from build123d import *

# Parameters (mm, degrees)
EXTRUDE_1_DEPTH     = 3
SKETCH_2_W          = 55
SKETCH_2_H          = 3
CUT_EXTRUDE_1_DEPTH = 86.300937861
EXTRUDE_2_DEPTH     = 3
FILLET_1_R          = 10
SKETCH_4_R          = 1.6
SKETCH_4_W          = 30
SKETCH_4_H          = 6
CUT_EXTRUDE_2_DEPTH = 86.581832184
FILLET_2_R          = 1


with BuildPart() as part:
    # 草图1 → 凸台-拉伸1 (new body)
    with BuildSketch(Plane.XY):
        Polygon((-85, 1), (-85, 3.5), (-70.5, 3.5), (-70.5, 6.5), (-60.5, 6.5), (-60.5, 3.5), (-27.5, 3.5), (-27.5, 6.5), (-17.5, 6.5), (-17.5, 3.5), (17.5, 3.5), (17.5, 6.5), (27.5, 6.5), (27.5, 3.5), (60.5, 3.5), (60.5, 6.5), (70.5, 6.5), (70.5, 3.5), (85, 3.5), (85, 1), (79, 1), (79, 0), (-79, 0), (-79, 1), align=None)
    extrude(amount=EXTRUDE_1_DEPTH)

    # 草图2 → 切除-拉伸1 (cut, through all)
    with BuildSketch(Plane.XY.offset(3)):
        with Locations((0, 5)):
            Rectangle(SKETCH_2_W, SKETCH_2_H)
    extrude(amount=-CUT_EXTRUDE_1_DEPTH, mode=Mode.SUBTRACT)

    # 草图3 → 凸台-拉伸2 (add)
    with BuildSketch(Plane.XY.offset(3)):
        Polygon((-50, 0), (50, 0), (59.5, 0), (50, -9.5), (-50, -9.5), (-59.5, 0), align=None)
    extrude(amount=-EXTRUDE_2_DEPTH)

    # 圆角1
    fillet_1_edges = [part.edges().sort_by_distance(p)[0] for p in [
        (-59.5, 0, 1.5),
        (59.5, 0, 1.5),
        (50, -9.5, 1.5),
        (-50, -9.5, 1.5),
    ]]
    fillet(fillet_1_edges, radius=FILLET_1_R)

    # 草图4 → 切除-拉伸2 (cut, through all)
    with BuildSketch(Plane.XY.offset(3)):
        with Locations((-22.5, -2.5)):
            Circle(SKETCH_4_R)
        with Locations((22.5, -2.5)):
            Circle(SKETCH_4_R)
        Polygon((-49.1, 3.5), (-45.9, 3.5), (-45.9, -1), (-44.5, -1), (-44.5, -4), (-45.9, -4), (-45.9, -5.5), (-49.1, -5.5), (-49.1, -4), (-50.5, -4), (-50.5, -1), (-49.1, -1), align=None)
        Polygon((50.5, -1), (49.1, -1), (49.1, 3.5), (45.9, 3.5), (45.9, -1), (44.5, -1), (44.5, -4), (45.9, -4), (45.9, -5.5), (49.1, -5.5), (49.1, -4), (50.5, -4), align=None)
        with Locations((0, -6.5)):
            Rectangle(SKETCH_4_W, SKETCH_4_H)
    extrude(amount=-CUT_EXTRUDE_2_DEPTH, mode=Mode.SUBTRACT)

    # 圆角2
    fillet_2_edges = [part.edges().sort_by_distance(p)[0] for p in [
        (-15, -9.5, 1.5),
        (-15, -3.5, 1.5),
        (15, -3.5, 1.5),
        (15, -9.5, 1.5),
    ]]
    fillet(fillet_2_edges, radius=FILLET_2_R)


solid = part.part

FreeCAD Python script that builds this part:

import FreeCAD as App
import Part
import Sketcher
from FreeCAD import Vector
Q = App.Units.Quantity


def edges_at(feature, points):
    """Names of the edges that pass closest to the given points."""
    edges = feature.Shape.Edges
    near = lambda p: min(range(len(edges)), key=lambda i: edges[i].distToShape(Part.Vertex(*p))[0])
    return sorted({f"Edge{near(p) + 1}" for p in points})

doc = App.newDocument("Part")
body = doc.addObject("PartDesign::Body", "Body")

# Sketch on XY plane
sketch1 = body.newObject("Sketcher::SketchObject", "Sketch")
sketch1.AttachmentSupport = (doc.getObject("XY_Plane"), [""])
sketch1.MapMode = "FlatFace"
sketch1.addGeometry(Part.LineSegment(Vector(-85, 3.5, 0), Vector(-85, 1, 0)), False)
sketch1.addGeometry(Part.LineSegment(Vector(-85, 1, 0), Vector(-79, 1, 0)), False)
sketch1.addGeometry(Part.LineSegment(Vector(-79, 1, 0), Vector(-79, 0, 0)), False)
sketch1.addGeometry(Part.LineSegment(Vector(-79, 0, 0), Vector(79, 0, 0)), False)
sketch1.addGeometry(Part.LineSegment(Vector(79, 0, 0), Vector(79, 1, 0)), False)
sketch1.addGeometry(Part.LineSegment(Vector(79, 1, 0), Vector(85, 1, 0)), False)
sketch1.addGeometry(Part.LineSegment(Vector(85, 1, 0), Vector(85, 3.5, 0)), False)
sketch1.addGeometry(Part.LineSegment(Vector(85, 3.5, 0), Vector(70.5, 3.5, 0)), False)
sketch1.addGeometry(Part.LineSegment(Vector(70.5, 3.5, 0), Vector(70.5, 6.5, 0)), False)
sketch1.addGeometry(Part.LineSegment(Vector(70.5, 6.5, 0), Vector(60.5, 6.5, 0)), False)
sketch1.addGeometry(Part.LineSegment(Vector(60.5, 6.5, 0), Vector(60.5, 3.5, 0)), False)
sketch1.addGeometry(Part.LineSegment(Vector(60.5, 3.5, 0), Vector(27.5, 3.5, 0)), False)
sketch1.addGeometry(Part.LineSegment(Vector(27.5, 3.5, 0), Vector(27.5, 6.5, 0)), False)
sketch1.addGeometry(Part.LineSegment(Vector(27.5, 6.5, 0), Vector(17.5, 6.5, 0)), False)
sketch1.addGeometry(Part.LineSegment(Vector(17.5, 6.5, 0), Vector(17.5, 3.5, 0)), False)
sketch1.addGeometry(Part.LineSegment(Vector(17.5, 3.5, 0), Vector(-17.5, 3.5, 0)), False)
sketch1.addGeometry(Part.LineSegment(Vector(-17.5, 3.5, 0), Vector(-17.5, 6.5, 0)), False)
sketch1.addGeometry(Part.LineSegment(Vector(-17.5, 6.5, 0), Vector(-27.5, 6.5, 0)), False)
sketch1.addGeometry(Part.LineSegment(Vector(-27.5, 6.5, 0), Vector(-27.5, 3.5, 0)), False)
sketch1.addGeometry(Part.LineSegment(Vector(-27.5, 3.5, 0), Vector(-60.5, 3.5, 0)), False)
sketch1.addGeometry(Part.LineSegment(Vector(-60.5, 3.5, 0), Vector(-60.5, 6.5, 0)), False)
sketch1.addGeometry(Part.LineSegment(Vector(-60.5, 6.5, 0), Vector(-70.5, 6.5, 0)), False)
sketch1.addGeometry(Part.LineSegment(Vector(-70.5, 6.5, 0), Vector(-70.5, 3.5, 0)), False)
sketch1.addGeometry(Part.LineSegment(Vector(-70.5, 3.5, 0), Vector(-85, 3.5, 0)), False)
sketch1.addConstraint(Sketcher.Constraint("Coincident", 0, 2, 1, 1))
sketch1.addConstraint(Sketcher.Constraint("Coincident", 1, 2, 2, 1))
sketch1.addConstraint(Sketcher.Constraint("Coincident", 2, 2, 3, 1))
sketch1.addConstraint(Sketcher.Constraint("Coincident", 3, 2, 4, 1))
sketch1.addConstraint(Sketcher.Constraint("Coincident", 4, 2, 5, 1))
sketch1.addConstraint(Sketcher.Constraint("Coincident", 5, 2, 6, 1))
sketch1.addConstraint(Sketcher.Constraint("Coincident", 6, 2, 7, 1))
sketch1.addConstraint(Sketcher.Constraint("Coincident", 7, 2, 8, 1))
sketch1.addConstraint(Sketcher.Constraint("Coincident", 8, 2, 9, 1))
sketch1.addConstraint(Sketcher.Constraint("Coincident", 9, 2, 10, 1))
sketch1.addConstraint(Sketcher.Constraint("Coincident", 10, 2, 11, 1))
sketch1.addConstraint(Sketcher.Constraint("Coincident", 11, 2, 12, 1))
sketch1.addConstraint(Sketcher.Constraint("Coincident", 12, 2, 13, 1))
sketch1.addConstraint(Sketcher.Constraint("Coincident", 13, 2, 14, 1))
sketch1.addConstraint(Sketcher.Constraint("Coincident", 14, 2, 15, 1))
sketch1.addConstraint(Sketcher.Constraint("Coincident", 15, 2, 16, 1))
sketch1.addConstraint(Sketcher.Constraint("Coincident", 16, 2, 17, 1))
sketch1.addConstraint(Sketcher.Constraint("Coincident", 17, 2, 18, 1))
sketch1.addConstraint(Sketcher.Constraint("Coincident", 18, 2, 19, 1))
sketch1.addConstraint(Sketcher.Constraint("Coincident", 19, 2, 20, 1))
sketch1.addConstraint(Sketcher.Constraint("Coincident", 20, 2, 21, 1))
sketch1.addConstraint(Sketcher.Constraint("Coincident", 21, 2, 22, 1))
sketch1.addConstraint(Sketcher.Constraint("Coincident", 22, 2, 23, 1))
sketch1.addConstraint(Sketcher.Constraint("Coincident", 23, 2, 0, 1))
sketch1.addConstraint(Sketcher.Constraint("Vertical", 0))
sketch1.addConstraint(Sketcher.Constraint("Horizontal", 1))
sketch1.addConstraint(Sketcher.Constraint("Vertical", 2))
sketch1.addConstraint(Sketcher.Constraint("Horizontal", 3))
sketch1.addConstraint(Sketcher.Constraint("Vertical", 4))
sketch1.addConstraint(Sketcher.Constraint("Horizontal", 5))
sketch1.addConstraint(Sketcher.Constraint("Vertical", 6))
sketch1.addConstraint(Sketcher.Constraint("Horizontal", 7))
sketch1.addConstraint(Sketcher.Constraint("Vertical", 8))
sketch1.addConstraint(Sketcher.Constraint("Horizontal", 9))
sketch1.addConstraint(Sketcher.Constraint("Vertical", 10))
sketch1.addConstraint(Sketcher.Constraint("Horizontal", 11))
sketch1.addConstraint(Sketcher.Constraint("Vertical", 12))
sketch1.addConstraint(Sketcher.Constraint("Horizontal", 13))
sketch1.addConstraint(Sketcher.Constraint("Vertical", 14))
sketch1.addConstraint(Sketcher.Constraint("Horizontal", 15))
sketch1.addConstraint(Sketcher.Constraint("Vertical", 16))
sketch1.addConstraint(Sketcher.Constraint("Horizontal", 17))
sketch1.addConstraint(Sketcher.Constraint("Vertical", 18))
sketch1.addConstraint(Sketcher.Constraint("Horizontal", 19))
sketch1.addConstraint(Sketcher.Constraint("Vertical", 20))
sketch1.addConstraint(Sketcher.Constraint("Horizontal", 21))
sketch1.addConstraint(Sketcher.Constraint("Vertical", 22))
sketch1.addConstraint(Sketcher.Constraint("Horizontal", 23))
sketch1.addConstraint(Sketcher.Constraint("Symmetric", 2, 2, 3, 2, -1, 1))
sketch1.addConstraint(Sketcher.Constraint("Symmetric", 0, 2, 5, 2, -2))
sketch1.addConstraint(Sketcher.Constraint("Symmetric", 13, 2, 16, 2, -2))
sketch1.addConstraint(Sketcher.Constraint("Symmetric", 11, 2, 18, 2, -2))
sketch1.addConstraint(Sketcher.Constraint("Symmetric", 9, 2, 20, 2, -2))
sketch1.addConstraint(Sketcher.Constraint("Symmetric", 7, 2, 22, 2, -2))
sketch1.addConstraint(Sketcher.Constraint("Horizontal", 7, 2, 10, 2))
sketch1.addConstraint(Sketcher.Constraint("Horizontal", 9, 2, 12, 2))
sketch1.addConstraint(Sketcher.Constraint("Horizontal", 11, 2, 14, 2))
sketch1.addConstraint(Sketcher.Constraint("Equal", 9, 13))
sketch1.addConstraint(Sketcher.Constraint("DistanceX", 1, 1, 1, 2, Q("6 mm")))
sketch1.addConstraint(Sketcher.Constraint("DistanceX", 3, 1, 3, 2, Q("158 mm")))
sketch1.addConstraint(Sketcher.Constraint("DistanceX", 9, 2, 9, 1, Q("10 mm")))
sketch1.addConstraint(Sketcher.Constraint("DistanceX", 11, 2, 11, 1, Q("33 mm")))
sketch1.addConstraint(Sketcher.Constraint("DistanceX", 15, 2, 15, 1, Q("35 mm")))
sketch1.addConstraint(Sketcher.Constraint("DistanceY", 2, 2, 2, 1, Q("1 mm")))
sketch1.addConstraint(Sketcher.Constraint("DistanceY", 8, 1, 8, 2, Q("3 mm")))
sketch1.addConstraint(Sketcher.Constraint("DistanceY", 0, 2, 0, 1, Q("2.5 mm")))
pad1 = body.newObject("PartDesign::Pad", "Pad")
pad1.Profile = sketch1
pad1.Length = 3

# Sketch on XY plane
sketch2 = body.newObject("Sketcher::SketchObject", "Sketch001")
sketch2.AttachmentSupport = (doc.getObject("XY_Plane"), [""])
sketch2.MapMode = "FlatFace"
sketch2.AttachmentOffset = App.Placement(Vector(0, 0, 3), App.Rotation())
sketch2.addGeometry(Part.LineSegment(Vector(-27.5, 6.5, 0), Vector(-27.5, 3.5, 0)), False)
sketch2.addGeometry(Part.LineSegment(Vector(-27.5, 3.5, 0), Vector(27.5, 3.5, 0)), False)
sketch2.addGeometry(Part.LineSegment(Vector(27.5, 3.5, 0), Vector(27.5, 6.5, 0)), False)
sketch2.addGeometry(Part.LineSegment(Vector(27.5, 6.5, 0), Vector(-27.5, 6.5, 0)), False)
sketch2.addConstraint(Sketcher.Constraint("Coincident", 0, 2, 1, 1))
sketch2.addConstraint(Sketcher.Constraint("Coincident", 1, 2, 2, 1))
sketch2.addConstraint(Sketcher.Constraint("Coincident", 2, 2, 3, 1))
sketch2.addConstraint(Sketcher.Constraint("Coincident", 3, 2, 0, 1))
sketch2.addConstraint(Sketcher.Constraint("Vertical", 0))
sketch2.addConstraint(Sketcher.Constraint("Horizontal", 1))
sketch2.addConstraint(Sketcher.Constraint("Vertical", 2))
sketch2.addConstraint(Sketcher.Constraint("Horizontal", 3))
sketch2.addConstraint(Sketcher.Constraint("DistanceX", 1, 1, 1, 2, Q("55 mm")))
sketch2.addConstraint(Sketcher.Constraint("DistanceY", 0, 2, 0, 1, Q("3 mm")))
sketch2.addConstraint(Sketcher.Constraint("DistanceX", 0, 2, -1, 1, Q("27.5 mm")))
sketch2.addConstraint(Sketcher.Constraint("DistanceY", -1, 1, 0, 2, Q("3.5 mm")))
pocket1 = body.newObject("PartDesign::Pocket", "Pocket")
pocket1.Profile = sketch2
pocket1.Type = "ThroughAll"

# Sketch on XY plane
sketch3 = body.newObject("Sketcher::SketchObject", "Sketch002")
sketch3.AttachmentSupport = (doc.getObject("XY_Plane"), [""])
sketch3.MapMode = "FlatFace"
sketch3.AttachmentOffset = App.Placement(Vector(0, 0, 3), App.Rotation())
sketch3.addGeometry(Part.LineSegment(Vector(59.5, 0, 0), Vector(-59.5, 0, 0)), False)
sketch3.addGeometry(Part.LineSegment(Vector(-59.5, 0, 0), Vector(-50, -9.5, 0)), False)
sketch3.addGeometry(Part.LineSegment(Vector(-50, -9.5, 0), Vector(50, -9.5, 0)), False)
sketch3.addGeometry(Part.LineSegment(Vector(50, -9.5, 0), Vector(59.5, 0, 0)), False)
sketch3.addConstraint(Sketcher.Constraint("Coincident", 0, 2, 1, 1))
sketch3.addConstraint(Sketcher.Constraint("Coincident", 1, 2, 2, 1))
sketch3.addConstraint(Sketcher.Constraint("Coincident", 2, 2, 3, 1))
sketch3.addConstraint(Sketcher.Constraint("Coincident", 3, 2, 0, 1))
sketch3.addConstraint(Sketcher.Constraint("Horizontal", 0))
sketch3.addConstraint(Sketcher.Constraint("Horizontal", 2))
sketch3.addConstraint(Sketcher.Constraint("Symmetric", 0, 2, 3, 2, -1, 1))
sketch3.addConstraint(Sketcher.Constraint("Perpendicular", 1, 3))
sketch3.addConstraint(Sketcher.Constraint("Equal", 1, 3))
sketch3.addConstraint(Sketcher.Constraint("DistanceX", 0, 2, 0, 1, Q("119 mm")))
sketch3.addConstraint(Sketcher.Constraint("DistanceX", 2, 1, 2, 2, Q("100 mm")))
pad2 = body.newObject("PartDesign::Pad", "Pad001")
pad2.Profile = sketch3
pad2.Length = 3
pad2.Reversed = True
doc.recompute()

fillet = body.newObject("PartDesign::Fillet", "Fillet")
fillet.Base = (pad2, edges_at(pad2, [
    (-59.5, 0, 1.5),
    (59.5, 0, 1.5),
    (50, -9.5, 1.5),
    (-50, -9.5, 1.5),
]))
fillet.Radius = 10

# Sketch on XY plane
sketch4 = body.newObject("Sketcher::SketchObject", "Sketch003")
sketch4.AttachmentSupport = (doc.getObject("XY_Plane"), [""])
sketch4.MapMode = "FlatFace"
sketch4.AttachmentOffset = App.Placement(Vector(0, 0, 3), App.Rotation())
sketch4.addGeometry(Part.Circle(Vector(-22.5, -2.5, 0), Vector(0, 0, 1), 1.6), False)
sketch4.addGeometry(Part.Circle(Vector(22.5, -2.5, 0), Vector(0, 0, 1), 1.6), False)
sketch4.addGeometry(Part.LineSegment(Vector(-45.9, 3.5, 0), Vector(-49.1, 3.5, 0)), False)
sketch4.addGeometry(Part.LineSegment(Vector(-49.1, 3.5, 0), Vector(-49.1, -1, 0)), False)
sketch4.addGeometry(Part.LineSegment(Vector(-49.1, -1, 0), Vector(-50.5, -1, 0)), False)
sketch4.addGeometry(Part.LineSegment(Vector(-50.5, -1, 0), Vector(-50.5, -4, 0)), False)
sketch4.addGeometry(Part.LineSegment(Vector(-50.5, -4, 0), Vector(-49.1, -4, 0)), False)
sketch4.addGeometry(Part.LineSegment(Vector(-49.1, -4, 0), Vector(-49.1, -5.5, 0)), False)
sketch4.addGeometry(Part.LineSegment(Vector(-49.1, -5.5, 0), Vector(-45.9, -5.5, 0)), False)
sketch4.addGeometry(Part.LineSegment(Vector(-45.9, -5.5, 0), Vector(-45.9, -4, 0)), False)
sketch4.addGeometry(Part.LineSegment(Vector(-45.9, -4, 0), Vector(-44.5, -4, 0)), False)
sketch4.addGeometry(Part.LineSegment(Vector(-44.5, -4, 0), Vector(-44.5, -1, 0)), False)
sketch4.addGeometry(Part.LineSegment(Vector(-44.5, -1, 0), Vector(-45.9, -1, 0)), False)
sketch4.addGeometry(Part.LineSegment(Vector(-45.9, -1, 0), Vector(-45.9, 3.5, 0)), False)
sketch4.addGeometry(Part.LineSegment(Vector(50.5, -1, 0), Vector(49.1, -1, 0)), False)
sketch4.addGeometry(Part.LineSegment(Vector(49.1, -1, 0), Vector(49.1, 3.5, 0)), False)
sketch4.addGeometry(Part.LineSegment(Vector(49.1, 3.5, 0), Vector(45.9, 3.5, 0)), False)
sketch4.addGeometry(Part.LineSegment(Vector(45.9, 3.5, 0), Vector(45.9, -1, 0)), False)
sketch4.addGeometry(Part.LineSegment(Vector(45.9, -1, 0), Vector(44.5, -1, 0)), False)
sketch4.addGeometry(Part.LineSegment(Vector(44.5, -1, 0), Vector(44.5, -4, 0)), False)
sketch4.addGeometry(Part.LineSegment(Vector(44.5, -4, 0), Vector(45.9, -4, 0)), False)
sketch4.addGeometry(Part.LineSegment(Vector(45.9, -4, 0), Vector(45.9, -5.5, 0)), False)
sketch4.addGeometry(Part.LineSegment(Vector(45.9, -5.5, 0), Vector(49.1, -5.5, 0)), False)
sketch4.addGeometry(Part.LineSegment(Vector(49.1, -5.5, 0), Vector(49.1, -4, 0)), False)
sketch4.addGeometry(Part.LineSegment(Vector(49.1, -4, 0), Vector(50.5, -4, 0)), False)
sketch4.addGeometry(Part.LineSegment(Vector(50.5, -4, 0), Vector(50.5, -1, 0)), False)
sketch4.addGeometry(Part.LineSegment(Vector(-15, -3.5, 0), Vector(-15, -9.5, 0)), False)
sketch4.addGeometry(Part.LineSegment(Vector(-15, -9.5, 0), Vector(15, -9.5, 0)), False)
sketch4.addGeometry(Part.LineSegment(Vector(15, -9.5, 0), Vector(15, -3.5, 0)), False)
sketch4.addGeometry(Part.LineSegment(Vector(15, -3.5, 0), Vector(-15, -3.5, 0)), False)
sketch4.addConstraint(Sketcher.Constraint("Coincident", 2, 2, 3, 1))
sketch4.addConstraint(Sketcher.Constraint("Coincident", 3, 2, 4, 1))
sketch4.addConstraint(Sketcher.Constraint("Coincident", 4, 2, 5, 1))
sketch4.addConstraint(Sketcher.Constraint("Coincident", 5, 2, 6, 1))
sketch4.addConstraint(Sketcher.Constraint("Coincident", 6, 2, 7, 1))
sketch4.addConstraint(Sketcher.Constraint("Coincident", 7, 2, 8, 1))
sketch4.addConstraint(Sketcher.Constraint("Coincident", 8, 2, 9, 1))
sketch4.addConstraint(Sketcher.Constraint("Coincident", 9, 2, 10, 1))
sketch4.addConstraint(Sketcher.Constraint("Coincident", 10, 2, 11, 1))
sketch4.addConstraint(Sketcher.Constraint("Coincident", 11, 2, 12, 1))
sketch4.addConstraint(Sketcher.Constraint("Coincident", 12, 2, 13, 1))
sketch4.addConstraint(Sketcher.Constraint("Coincident", 13, 2, 2, 1))
sketch4.addConstraint(Sketcher.Constraint("Coincident", 14, 2, 15, 1))
sketch4.addConstraint(Sketcher.Constraint("Coincident", 15, 2, 16, 1))
sketch4.addConstraint(Sketcher.Constraint("Coincident", 16, 2, 17, 1))
sketch4.addConstraint(Sketcher.Constraint("Coincident", 17, 2, 18, 1))
sketch4.addConstraint(Sketcher.Constraint("Coincident", 18, 2, 19, 1))
sketch4.addConstraint(Sketcher.Constraint("Coincident", 19, 2, 20, 1))
sketch4.addConstraint(Sketcher.Constraint("Coincident", 20, 2, 21, 1))
sketch4.addConstraint(Sketcher.Constraint("Coincident", 21, 2, 22, 1))
sketch4.addConstraint(Sketcher.Constraint("Coincident", 22, 2, 23, 1))
sketch4.addConstraint(Sketcher.Constraint("Coincident", 23, 2, 24, 1))
sketch4.addConstraint(Sketcher.Constraint("Coincident", 24, 2, 25, 1))
sketch4.addConstraint(Sketcher.Constraint("Coincident", 25, 2, 14, 1))
sketch4.addConstraint(Sketcher.Constraint("Coincident", 26, 2, 27, 1))
sketch4.addConstraint(Sketcher.Constraint("Coincident", 27, 2, 28, 1))
sketch4.addConstraint(Sketcher.Constraint("Coincident", 28, 2, 29, 1))
sketch4.addConstraint(Sketcher.Constraint("Coincident", 29, 2, 26, 1))
sketch4.addConstraint(Sketcher.Constraint("Horizontal", 2))
sketch4.addConstraint(Sketcher.Constraint("Vertical", 3))
sketch4.addConstraint(Sketcher.Constraint("Horizontal", 4))
sketch4.addConstraint(Sketcher.Constraint("Vertical", 5))
sketch4.addConstraint(Sketcher.Constraint("Horizontal", 6))
sketch4.addConstraint(Sketcher.Constraint("Vertical", 7))
sketch4.addConstraint(Sketcher.Constraint("Horizontal", 8))
sketch4.addConstraint(Sketcher.Constraint("Vertical", 9))
sketch4.addConstraint(Sketcher.Constraint("Horizontal", 10))
sketch4.addConstraint(Sketcher.Constraint("Vertical", 11))
sketch4.addConstraint(Sketcher.Constraint("Horizontal", 12))
sketch4.addConstraint(Sketcher.Constraint("Vertical", 13))
sketch4.addConstraint(Sketcher.Constraint("Horizontal", 14))
sketch4.addConstraint(Sketcher.Constraint("Vertical", 15))
sketch4.addConstraint(Sketcher.Constraint("Horizontal", 16))
sketch4.addConstraint(Sketcher.Constraint("Vertical", 17))
sketch4.addConstraint(Sketcher.Constraint("Horizontal", 18))
sketch4.addConstraint(Sketcher.Constraint("Vertical", 19))
sketch4.addConstraint(Sketcher.Constraint("Horizontal", 20))
sketch4.addConstraint(Sketcher.Constraint("Vertical", 21))
sketch4.addConstraint(Sketcher.Constraint("Horizontal", 22))
sketch4.addConstraint(Sketcher.Constraint("Vertical", 23))
sketch4.addConstraint(Sketcher.Constraint("Horizontal", 24))
sketch4.addConstraint(Sketcher.Constraint("Vertical", 25))
sketch4.addConstraint(Sketcher.Constraint("Vertical", 26))
sketch4.addConstraint(Sketcher.Constraint("Horizontal", 27))
sketch4.addConstraint(Sketcher.Constraint("Vertical", 28))
sketch4.addConstraint(Sketcher.Constraint("Horizontal", 29))
sketch4.addConstraint(Sketcher.Constraint("Equal", 0, 1))
sketch4.addConstraint(Sketcher.Constraint("Symmetric", 0, 3, 1, 3, -2))
sketch4.addConstraint(Sketcher.Constraint("Symmetric", 3, 2, 14, 2, -2))
sketch4.addConstraint(Sketcher.Constraint("Symmetric", 13, 2, 16, 2, -2))
sketch4.addConstraint(Sketcher.Constraint("Symmetric", 11, 2, 18, 2, -2))
sketch4.addConstraint(Sketcher.Constraint("Symmetric", 9, 2, 20, 2, -2))
sketch4.addConstraint(Sketcher.Constraint("Symmetric", 7, 2, 22, 2, -2))
sketch4.addConstraint(Sketcher.Constraint("Symmetric", 5, 2, 24, 2, -2))
sketch4.addConstraint(Sketcher.Constraint("Horizontal", 6, 2, 9, 2))
sketch4.addConstraint(Sketcher.Constraint("Horizontal", 4, 2, 11, 2))
sketch4.addConstraint(Sketcher.Constraint("Vertical", 3, 2, 6, 2))
sketch4.addConstraint(Sketcher.Constraint("Vertical", 9, 2, 12, 2))
sketch4.addConstraint(Sketcher.Constraint("Equal", 6, 10))
sketch4.addConstraint(Sketcher.Constraint("Diameter", 0, Q("3.2 mm")))
sketch4.addConstraint(Sketcher.Constraint("DistanceX", 27, 1, 27, 2, Q("30 mm")))
sketch4.addConstraint(Sketcher.Constraint("DistanceY", 5, 2, 5, 1, Q("3 mm")))
sketch4.addConstraint(Sketcher.Constraint("DistanceY", 26, 2, 26, 1, Q("6 mm")))
sketch4.addConstraint(Sketcher.Constraint("DistanceX", 2, 2, 2, 1, Q("3.2 mm")))
sketch4.addConstraint(Sketcher.Constraint("DistanceX", 4, 2, 4, 1, Q("1.4 mm")))
sketch4.addConstraint(Sketcher.Constraint("DistanceY", 3, 2, 3, 1, Q("4.5 mm")))
sketch4.addConstraint(Sketcher.Constraint("DistanceY", 7, 2, 7, 1, Q("1.5 mm")))
sketch4.addConstraint(Sketcher.Constraint("DistanceY", 3, 2, -1, 1, Q("1 mm")))
sketch4.addConstraint(Sketcher.Constraint("DistanceX", 26, 2, -1, 1, Q("15 mm")))
sketch4.addConstraint(Sketcher.Constraint("DistanceX", 0, 3, 1, 3, Q("45 mm")))
sketch4.addConstraint(Sketcher.Constraint("DistanceY", 0, 3, 2, 2, Q("6 mm")))
sketch4.addConstraint(Sketcher.Constraint("DistanceX", 4, 2, 0, 3, Q("28 mm")))
sketch4.addConstraint(Sketcher.Constraint("DistanceY", 26, 2, 0, 3, Q("7 mm")))
pocket2 = body.newObject("PartDesign::Pocket", "Pocket001")
pocket2.Profile = sketch4
pocket2.Type = "ThroughAll"
doc.recompute()

fillet2 = body.newObject("PartDesign::Fillet", "Fillet001")
fillet2.Base = (pocket2, edges_at(pocket2, [
    (-15, -9.5, 1.5),
    (-15, -3.5, 1.5),
    (15, -3.5, 1.5),
    (15, -9.5, 1.5),
]))
fillet2.Radius = 1

doc.recompute()
